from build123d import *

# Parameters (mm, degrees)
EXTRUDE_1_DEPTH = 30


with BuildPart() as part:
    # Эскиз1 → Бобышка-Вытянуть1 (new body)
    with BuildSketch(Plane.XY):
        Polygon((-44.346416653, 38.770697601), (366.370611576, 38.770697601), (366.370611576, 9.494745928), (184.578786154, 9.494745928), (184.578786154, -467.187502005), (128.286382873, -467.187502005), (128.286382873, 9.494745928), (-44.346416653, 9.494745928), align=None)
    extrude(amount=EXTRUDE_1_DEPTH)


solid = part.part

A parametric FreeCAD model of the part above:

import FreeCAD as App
import Part
import Sketcher
from FreeCAD import Vector

doc = App.newDocument("Part")
body = doc.addObject("PartDesign::Body", "Body")

sketch1 = doc.addObject("Sketcher::SketchObject", "Sketch")
body.addObject(sketch1)
sketch1.AttachmentSupport = (doc.XY_Plane, [""])
sketch1.MapMode = "FlatFace"
sketch1.addGeometry(Part.LineSegment(Vector(366, 39, 0), Vector(-44, 39, 0)), False)
sketch1.addGeometry(Part.LineSegment(Vector(-44, 39, 0), Vector(-44, 9, 0)), False)
sketch1.addGeometry(Part.LineSegment(Vector(-44, 9, 0), Vector(128, 9, 0)), False)
sketch1.addGeometry(Part.LineSegment(Vector(128, 9, 0), Vector(128, -467, 0)), False)
sketch1.addGeometry(Part.LineSegment(Vector(128, -467, 0), Vector(185, -467, 0)), False)
sketch1.addGeometry(Part.LineSegment(Vector(185, -467, 0), Vector(185, 9, 0)), False)
sketch1.addGeometry(Part.LineSegment(Vector(185, 9, 0), Vector(366, 9, 0)), False)
sketch1.addGeometry(Part.LineSegment(Vector(366, 9, 0), Vector(366, 39, 0)), False)
sketch1.addConstraint(Sketcher.Constraint("Coincident", 0, 2, 1, 1))
sketch1.addConstraint(Sketcher.Constraint("Coincident", 1, 2, 2, 1))
sketch1.addConstraint(Sketcher.Constraint("Coincident", 2, 2, 3, 1))
sketch1.addConstraint(Sketcher.Constraint("Coincident", 3, 2, 4, 1))
sketch1.addConstraint(Sketcher.Constraint("Coincident", 4, 2, 5, 1))
sketch1.addConstraint(Sketcher.Constraint("Coincident", 5, 2, 6, 1))
sketch1.addConstraint(Sketcher.Constraint("Coincident", 6, 2, 7, 1))
sketch1.addConstraint(Sketcher.Constraint("Coincident", 7, 2, 0, 1))
sketch1.addConstraint(Sketcher.Constraint("Horizontal", 0))
sketch1.addConstraint(Sketcher.Constraint("Vertical", 1))
sketch1.addConstraint(Sketcher.Constraint("Horizontal", 2))
sketch1.addConstraint(Sketcher.Constraint("Vertical", 3))
sketch1.addConstraint(Sketcher.Constraint("Horizontal", 4))
sketch1.addConstraint(Sketcher.Constraint("Vertical", 5))
sketch1.addConstraint(Sketcher.Constraint("Horizontal", 6))
sketch1.addConstraint(Sketcher.Constraint("Vertical", 7))
sketch1.addConstraint(Sketcher.Constraint("Horizontal", 2, 2, 5, 2))
sketch1.addConstraint(Sketcher.Constraint("DistanceX", 2, 1, 2, 2, 172.6328))
sketch1.addConstraint(Sketcher.Constraint("DistanceX", 0, 2, 0, 1, 410.717028))
sketch1.addConstraint(Sketcher.Constraint("DistanceY", 1, 2, 1, 1, 29.275952))
sketch1.addConstraint(Sketcher.Constraint("DistanceY", 3, 2, 0, 2, 505.9582))
sketch1.addConstraint(Sketcher.Constraint("DistanceX", 4, 1, 4, 2, 56.292403))
sketch1.addConstraint(Sketcher.Constraint("DistanceX", -1, 1, 6, 2, 366.370612))
sketch1.addConstraint(Sketcher.Constraint("DistanceY", -1, 1, 0, 2, 38.770698))
pad1 = doc.addObject("PartDesign::Pad", "Pad")
body.addObject(pad1)
pad1.Profile = sketch1
pad1.Length = 30

doc.recompute()
